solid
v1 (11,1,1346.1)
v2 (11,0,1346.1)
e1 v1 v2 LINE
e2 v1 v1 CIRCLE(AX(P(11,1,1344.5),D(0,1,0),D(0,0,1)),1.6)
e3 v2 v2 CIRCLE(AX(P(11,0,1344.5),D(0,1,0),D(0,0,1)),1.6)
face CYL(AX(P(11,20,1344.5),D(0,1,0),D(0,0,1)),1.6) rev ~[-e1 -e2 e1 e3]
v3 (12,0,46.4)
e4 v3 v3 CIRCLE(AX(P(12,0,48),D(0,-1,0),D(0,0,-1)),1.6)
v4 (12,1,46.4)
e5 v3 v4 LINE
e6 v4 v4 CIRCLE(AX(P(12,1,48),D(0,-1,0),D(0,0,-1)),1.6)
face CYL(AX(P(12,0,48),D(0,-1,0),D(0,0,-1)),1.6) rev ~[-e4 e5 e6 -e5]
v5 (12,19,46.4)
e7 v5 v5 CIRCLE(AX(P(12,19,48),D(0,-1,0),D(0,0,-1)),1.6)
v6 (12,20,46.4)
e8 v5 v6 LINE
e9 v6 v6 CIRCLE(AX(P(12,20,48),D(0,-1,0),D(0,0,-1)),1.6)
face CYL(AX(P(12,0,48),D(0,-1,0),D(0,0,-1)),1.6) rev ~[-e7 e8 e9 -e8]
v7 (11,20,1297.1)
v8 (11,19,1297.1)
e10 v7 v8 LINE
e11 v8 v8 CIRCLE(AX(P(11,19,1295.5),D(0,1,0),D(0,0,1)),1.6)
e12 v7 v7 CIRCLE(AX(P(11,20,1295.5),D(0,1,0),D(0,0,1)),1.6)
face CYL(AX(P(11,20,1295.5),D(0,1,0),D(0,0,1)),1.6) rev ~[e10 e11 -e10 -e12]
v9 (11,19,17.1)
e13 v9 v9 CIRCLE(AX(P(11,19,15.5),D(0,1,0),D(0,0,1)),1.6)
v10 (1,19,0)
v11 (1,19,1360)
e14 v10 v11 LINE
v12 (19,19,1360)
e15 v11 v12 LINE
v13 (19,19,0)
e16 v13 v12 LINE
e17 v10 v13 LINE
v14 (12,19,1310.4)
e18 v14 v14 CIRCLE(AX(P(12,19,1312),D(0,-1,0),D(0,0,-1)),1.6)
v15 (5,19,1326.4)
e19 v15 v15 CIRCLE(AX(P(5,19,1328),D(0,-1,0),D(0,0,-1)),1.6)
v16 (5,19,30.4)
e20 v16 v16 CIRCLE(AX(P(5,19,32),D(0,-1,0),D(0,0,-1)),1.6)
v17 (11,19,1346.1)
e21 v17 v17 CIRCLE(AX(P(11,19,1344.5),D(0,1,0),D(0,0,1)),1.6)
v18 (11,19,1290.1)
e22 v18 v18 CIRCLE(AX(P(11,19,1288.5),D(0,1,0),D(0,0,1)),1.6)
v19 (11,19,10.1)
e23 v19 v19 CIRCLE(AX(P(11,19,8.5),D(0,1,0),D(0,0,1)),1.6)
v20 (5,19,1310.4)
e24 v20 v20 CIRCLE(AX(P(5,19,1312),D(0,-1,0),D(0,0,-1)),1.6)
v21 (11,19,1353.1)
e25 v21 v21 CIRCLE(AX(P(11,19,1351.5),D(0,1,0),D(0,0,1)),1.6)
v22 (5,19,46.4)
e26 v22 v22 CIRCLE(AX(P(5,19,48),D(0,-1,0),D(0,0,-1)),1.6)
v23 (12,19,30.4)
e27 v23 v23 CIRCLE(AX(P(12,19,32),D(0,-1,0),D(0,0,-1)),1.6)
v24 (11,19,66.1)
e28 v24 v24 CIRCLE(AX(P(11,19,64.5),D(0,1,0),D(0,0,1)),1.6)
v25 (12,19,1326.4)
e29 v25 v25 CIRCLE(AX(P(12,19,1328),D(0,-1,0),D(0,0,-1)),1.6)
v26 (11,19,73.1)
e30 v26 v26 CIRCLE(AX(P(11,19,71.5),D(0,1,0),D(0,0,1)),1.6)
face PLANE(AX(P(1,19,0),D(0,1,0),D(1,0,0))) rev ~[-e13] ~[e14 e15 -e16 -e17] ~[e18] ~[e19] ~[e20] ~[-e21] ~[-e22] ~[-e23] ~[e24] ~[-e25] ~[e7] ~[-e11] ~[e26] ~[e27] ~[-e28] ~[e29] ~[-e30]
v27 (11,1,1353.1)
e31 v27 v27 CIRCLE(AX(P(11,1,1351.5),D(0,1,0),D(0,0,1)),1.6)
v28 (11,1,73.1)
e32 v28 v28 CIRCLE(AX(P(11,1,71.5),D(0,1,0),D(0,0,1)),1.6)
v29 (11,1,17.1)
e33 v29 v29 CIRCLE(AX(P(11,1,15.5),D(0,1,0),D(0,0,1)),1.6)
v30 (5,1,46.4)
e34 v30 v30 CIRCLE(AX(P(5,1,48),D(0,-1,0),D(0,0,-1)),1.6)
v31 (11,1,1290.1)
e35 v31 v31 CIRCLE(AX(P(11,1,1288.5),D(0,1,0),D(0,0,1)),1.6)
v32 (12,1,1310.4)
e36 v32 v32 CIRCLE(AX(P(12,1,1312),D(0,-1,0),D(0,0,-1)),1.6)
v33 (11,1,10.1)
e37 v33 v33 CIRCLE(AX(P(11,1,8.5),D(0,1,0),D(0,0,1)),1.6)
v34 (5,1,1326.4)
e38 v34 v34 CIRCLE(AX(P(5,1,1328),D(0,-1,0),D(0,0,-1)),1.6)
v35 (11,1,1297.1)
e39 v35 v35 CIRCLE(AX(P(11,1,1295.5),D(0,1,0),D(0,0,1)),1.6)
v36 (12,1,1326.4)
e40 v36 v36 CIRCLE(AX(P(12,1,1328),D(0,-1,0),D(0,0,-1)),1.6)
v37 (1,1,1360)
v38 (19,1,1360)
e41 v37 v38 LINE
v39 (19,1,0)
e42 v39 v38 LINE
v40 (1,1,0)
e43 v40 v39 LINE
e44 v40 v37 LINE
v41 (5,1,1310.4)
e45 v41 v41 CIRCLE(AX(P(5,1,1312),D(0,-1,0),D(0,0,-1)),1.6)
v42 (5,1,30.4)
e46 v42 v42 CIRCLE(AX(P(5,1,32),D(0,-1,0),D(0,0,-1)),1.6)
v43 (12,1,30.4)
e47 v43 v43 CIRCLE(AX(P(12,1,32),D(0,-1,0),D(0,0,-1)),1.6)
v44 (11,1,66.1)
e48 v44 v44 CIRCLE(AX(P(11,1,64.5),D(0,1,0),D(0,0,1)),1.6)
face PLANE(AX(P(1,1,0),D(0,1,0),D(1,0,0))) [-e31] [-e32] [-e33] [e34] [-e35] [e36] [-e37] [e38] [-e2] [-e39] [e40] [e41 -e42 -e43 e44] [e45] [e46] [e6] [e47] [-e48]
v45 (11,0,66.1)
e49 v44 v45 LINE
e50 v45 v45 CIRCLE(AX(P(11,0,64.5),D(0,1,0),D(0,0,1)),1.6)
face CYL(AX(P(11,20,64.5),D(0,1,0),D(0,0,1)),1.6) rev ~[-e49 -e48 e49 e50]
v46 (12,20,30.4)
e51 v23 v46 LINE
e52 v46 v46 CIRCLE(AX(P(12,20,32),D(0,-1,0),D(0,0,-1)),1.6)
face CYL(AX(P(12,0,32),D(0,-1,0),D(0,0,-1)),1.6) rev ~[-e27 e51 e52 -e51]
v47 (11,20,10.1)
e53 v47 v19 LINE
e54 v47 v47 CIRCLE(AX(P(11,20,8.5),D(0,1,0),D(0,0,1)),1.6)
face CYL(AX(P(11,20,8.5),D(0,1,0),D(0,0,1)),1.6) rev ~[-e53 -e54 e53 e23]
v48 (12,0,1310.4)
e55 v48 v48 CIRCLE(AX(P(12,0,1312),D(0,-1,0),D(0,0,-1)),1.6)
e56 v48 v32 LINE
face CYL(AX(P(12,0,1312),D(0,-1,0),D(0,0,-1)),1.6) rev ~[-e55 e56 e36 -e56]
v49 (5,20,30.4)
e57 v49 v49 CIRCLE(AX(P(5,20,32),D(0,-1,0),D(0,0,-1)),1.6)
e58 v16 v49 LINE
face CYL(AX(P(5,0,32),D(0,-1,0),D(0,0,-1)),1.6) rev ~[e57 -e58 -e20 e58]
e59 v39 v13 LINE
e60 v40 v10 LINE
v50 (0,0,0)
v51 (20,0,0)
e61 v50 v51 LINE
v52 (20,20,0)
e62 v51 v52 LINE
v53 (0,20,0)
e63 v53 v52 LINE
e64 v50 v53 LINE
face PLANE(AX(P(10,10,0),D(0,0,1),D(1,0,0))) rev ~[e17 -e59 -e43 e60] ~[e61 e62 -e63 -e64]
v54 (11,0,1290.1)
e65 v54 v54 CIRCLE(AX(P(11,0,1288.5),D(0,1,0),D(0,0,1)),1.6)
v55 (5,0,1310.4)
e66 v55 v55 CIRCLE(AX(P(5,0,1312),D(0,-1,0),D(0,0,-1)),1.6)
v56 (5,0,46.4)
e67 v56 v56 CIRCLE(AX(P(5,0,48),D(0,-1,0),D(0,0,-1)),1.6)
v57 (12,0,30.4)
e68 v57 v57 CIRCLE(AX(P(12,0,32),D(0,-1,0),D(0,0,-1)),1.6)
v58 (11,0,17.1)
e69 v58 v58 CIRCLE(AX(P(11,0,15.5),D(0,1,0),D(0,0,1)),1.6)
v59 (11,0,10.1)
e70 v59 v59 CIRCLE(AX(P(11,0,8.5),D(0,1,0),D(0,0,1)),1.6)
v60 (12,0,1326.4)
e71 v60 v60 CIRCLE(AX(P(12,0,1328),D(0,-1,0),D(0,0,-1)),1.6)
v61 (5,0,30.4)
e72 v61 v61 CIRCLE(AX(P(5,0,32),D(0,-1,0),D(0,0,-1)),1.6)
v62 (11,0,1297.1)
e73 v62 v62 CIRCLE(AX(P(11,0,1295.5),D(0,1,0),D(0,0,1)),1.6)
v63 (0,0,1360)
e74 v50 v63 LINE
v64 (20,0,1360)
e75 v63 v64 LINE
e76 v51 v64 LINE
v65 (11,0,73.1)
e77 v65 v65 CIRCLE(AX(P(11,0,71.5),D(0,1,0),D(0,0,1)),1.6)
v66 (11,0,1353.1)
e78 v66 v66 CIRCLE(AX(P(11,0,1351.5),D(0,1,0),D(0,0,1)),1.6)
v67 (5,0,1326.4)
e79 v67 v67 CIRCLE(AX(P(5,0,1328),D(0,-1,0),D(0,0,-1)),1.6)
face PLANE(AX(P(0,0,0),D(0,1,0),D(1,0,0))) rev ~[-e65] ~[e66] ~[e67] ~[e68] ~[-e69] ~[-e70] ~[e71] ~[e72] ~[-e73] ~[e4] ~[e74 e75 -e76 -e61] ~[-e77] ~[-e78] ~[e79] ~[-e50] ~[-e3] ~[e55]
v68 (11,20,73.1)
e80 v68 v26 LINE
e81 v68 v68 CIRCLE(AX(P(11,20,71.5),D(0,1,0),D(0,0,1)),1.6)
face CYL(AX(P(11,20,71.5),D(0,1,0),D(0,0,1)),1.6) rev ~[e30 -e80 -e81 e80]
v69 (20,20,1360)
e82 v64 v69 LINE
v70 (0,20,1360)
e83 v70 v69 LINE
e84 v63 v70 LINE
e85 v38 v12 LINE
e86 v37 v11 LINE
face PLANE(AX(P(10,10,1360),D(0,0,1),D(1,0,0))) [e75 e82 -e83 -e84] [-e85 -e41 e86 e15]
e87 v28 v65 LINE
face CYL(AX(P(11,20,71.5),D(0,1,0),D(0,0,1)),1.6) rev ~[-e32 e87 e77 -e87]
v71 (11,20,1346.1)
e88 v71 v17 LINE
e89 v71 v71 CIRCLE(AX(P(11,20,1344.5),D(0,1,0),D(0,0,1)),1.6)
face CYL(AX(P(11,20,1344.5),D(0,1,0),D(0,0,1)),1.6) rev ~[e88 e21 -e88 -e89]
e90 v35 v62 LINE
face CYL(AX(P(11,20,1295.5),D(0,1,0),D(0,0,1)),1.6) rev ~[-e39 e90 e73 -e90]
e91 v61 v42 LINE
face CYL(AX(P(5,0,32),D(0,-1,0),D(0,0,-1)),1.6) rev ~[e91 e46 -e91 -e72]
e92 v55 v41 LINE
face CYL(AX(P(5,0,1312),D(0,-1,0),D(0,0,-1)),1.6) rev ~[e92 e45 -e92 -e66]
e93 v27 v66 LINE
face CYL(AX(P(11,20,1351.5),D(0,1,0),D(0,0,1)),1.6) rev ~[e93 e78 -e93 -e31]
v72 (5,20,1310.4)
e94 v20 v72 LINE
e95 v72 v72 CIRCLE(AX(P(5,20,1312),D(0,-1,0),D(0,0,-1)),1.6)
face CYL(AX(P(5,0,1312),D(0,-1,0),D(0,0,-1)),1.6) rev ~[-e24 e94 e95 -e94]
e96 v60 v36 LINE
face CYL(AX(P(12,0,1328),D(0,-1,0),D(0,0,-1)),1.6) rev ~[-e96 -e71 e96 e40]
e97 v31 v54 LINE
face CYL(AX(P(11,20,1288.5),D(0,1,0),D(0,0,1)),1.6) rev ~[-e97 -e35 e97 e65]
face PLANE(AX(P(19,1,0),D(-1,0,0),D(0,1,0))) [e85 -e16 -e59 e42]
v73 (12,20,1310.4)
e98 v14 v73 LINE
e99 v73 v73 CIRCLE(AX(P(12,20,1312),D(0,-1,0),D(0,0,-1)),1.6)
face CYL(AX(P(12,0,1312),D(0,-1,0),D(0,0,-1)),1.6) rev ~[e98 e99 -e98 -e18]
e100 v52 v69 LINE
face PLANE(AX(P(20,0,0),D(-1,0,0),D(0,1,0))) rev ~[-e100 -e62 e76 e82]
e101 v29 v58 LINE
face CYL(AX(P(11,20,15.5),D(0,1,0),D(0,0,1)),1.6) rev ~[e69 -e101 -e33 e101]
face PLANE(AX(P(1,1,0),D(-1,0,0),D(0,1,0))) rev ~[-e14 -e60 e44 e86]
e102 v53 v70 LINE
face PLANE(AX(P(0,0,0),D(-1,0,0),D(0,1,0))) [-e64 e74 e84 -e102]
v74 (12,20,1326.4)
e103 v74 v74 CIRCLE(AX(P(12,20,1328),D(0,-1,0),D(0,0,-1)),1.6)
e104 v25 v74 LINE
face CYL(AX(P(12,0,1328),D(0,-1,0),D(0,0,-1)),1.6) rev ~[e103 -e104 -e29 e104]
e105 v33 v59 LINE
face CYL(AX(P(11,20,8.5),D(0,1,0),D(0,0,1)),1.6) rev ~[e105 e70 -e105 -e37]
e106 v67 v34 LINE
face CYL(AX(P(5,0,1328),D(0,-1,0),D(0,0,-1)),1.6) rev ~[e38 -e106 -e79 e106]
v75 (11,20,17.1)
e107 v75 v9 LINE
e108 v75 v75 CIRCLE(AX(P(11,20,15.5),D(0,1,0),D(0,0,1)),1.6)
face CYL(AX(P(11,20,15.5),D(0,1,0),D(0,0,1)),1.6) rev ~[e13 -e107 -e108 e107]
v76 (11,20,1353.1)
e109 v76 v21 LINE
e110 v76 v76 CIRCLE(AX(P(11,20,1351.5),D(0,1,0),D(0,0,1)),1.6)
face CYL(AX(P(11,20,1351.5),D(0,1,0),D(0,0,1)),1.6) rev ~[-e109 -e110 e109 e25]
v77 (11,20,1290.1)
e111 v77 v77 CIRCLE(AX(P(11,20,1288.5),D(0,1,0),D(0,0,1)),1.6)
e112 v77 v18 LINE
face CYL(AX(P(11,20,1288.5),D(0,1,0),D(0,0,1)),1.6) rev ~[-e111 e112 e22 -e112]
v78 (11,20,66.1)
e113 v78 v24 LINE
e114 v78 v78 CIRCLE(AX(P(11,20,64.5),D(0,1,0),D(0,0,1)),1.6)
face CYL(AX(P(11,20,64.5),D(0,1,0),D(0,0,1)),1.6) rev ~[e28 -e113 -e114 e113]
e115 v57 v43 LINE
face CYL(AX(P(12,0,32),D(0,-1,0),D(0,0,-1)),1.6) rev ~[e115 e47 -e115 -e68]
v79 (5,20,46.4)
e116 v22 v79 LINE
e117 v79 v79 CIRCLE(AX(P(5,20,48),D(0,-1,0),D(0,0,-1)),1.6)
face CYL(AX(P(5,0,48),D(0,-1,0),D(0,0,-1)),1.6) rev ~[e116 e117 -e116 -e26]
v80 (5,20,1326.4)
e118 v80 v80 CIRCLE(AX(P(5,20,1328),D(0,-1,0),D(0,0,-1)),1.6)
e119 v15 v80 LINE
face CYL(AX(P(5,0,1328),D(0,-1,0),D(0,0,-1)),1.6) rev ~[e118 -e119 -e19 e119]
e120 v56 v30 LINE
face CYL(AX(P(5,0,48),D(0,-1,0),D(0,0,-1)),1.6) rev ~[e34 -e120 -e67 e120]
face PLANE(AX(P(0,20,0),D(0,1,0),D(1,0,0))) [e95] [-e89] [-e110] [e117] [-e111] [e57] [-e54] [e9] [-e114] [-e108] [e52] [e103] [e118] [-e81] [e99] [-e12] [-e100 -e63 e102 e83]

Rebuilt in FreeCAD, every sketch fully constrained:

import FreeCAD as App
import Part
import Sketcher

V = App.Vector
Q = App.Units.Quantity


def add_polygon(sketch, points):
    """Adds a closed chain of lines whose ends are joined by coincident constraints."""
    first, n = sketch.GeometryCount, len(points)
    for a, b in zip(points, points[1:] + points[:1]):
        sketch.addGeometry(Part.LineSegment(App.Vector(*a, 0), App.Vector(*b, 0)), False)
    for i in range(n):
        sketch.addConstraint(Sketcher.Constraint("Coincident", first + i, 2, first + (i + 1) % n, 1))

doc = App.newDocument("Part")
params = doc.addObject("Spreadsheet::Sheet", "Params")
for row, (alias, value) in enumerate([
    ("sketch1_width", "20 mm"),
    ("sketch1_width2", "18 mm"),
    ("pad1_length", "1360 mm"),
    ("sketch2_diameter", "3.2 mm"),
    ("sketch3_diameter", "3.2 mm"),
], start=1):
    params.set(f"A{row}", alias)
    params.set(f"B{row}", "=" + value)
    params.setAlias(f"B{row}", alias)

body = doc.addObject("PartDesign::Body", "Body")

sketch1 = doc.addObject("Sketcher::SketchObject", "Sketch")
body.addObject(sketch1)
sketch1.AttachmentSupport = (doc.XY_Plane, [""])
sketch1.MapMode = "FlatFace"
add_polygon(sketch1, [(0, 20), (0, 0), (20, 0), (20, 20)])
add_polygon(sketch1, [(19, 1), (1, 1), (1, 19), (19, 19)])
sketch1.addConstraint([
    Sketcher.Constraint("Vertical", 0),
    Sketcher.Constraint("Horizontal", 1),
    Sketcher.Constraint("Vertical", 2),
    Sketcher.Constraint("Horizontal", 3),
    Sketcher.Constraint("Horizontal", 4),
    Sketcher.Constraint("Vertical", 5),
    Sketcher.Constraint("Horizontal", 6),
    Sketcher.Constraint("Vertical", 7),
    Sketcher.Constraint("Coincident", 0, 2, -1, 1),
    Sketcher.Constraint("Equal", 3, 0),
    Sketcher.Constraint("Equal", 6, 5),
    Sketcher.Constraint("DistanceX", 1, 1, 1, 2, Q("20 mm")),
    Sketcher.Constraint("DistanceX", 4, 2, 4, 1, Q("18 mm")),
    Sketcher.Constraint("DistanceX", -1, 1, 4, 2, Q("1 mm")),
    Sketcher.Constraint("DistanceY", -1, 1, 4, 2, Q("1 mm")),
])
sketch1.setExpression("Constraints[19]", "Params.sketch1_width")
sketch1.setExpression("Constraints[20]", "Params.sketch1_width2")
pad1 = doc.addObject("PartDesign::Pad", "Pad")
body.addObject(pad1)
pad1.Profile = sketch1
pad1.setExpression("Length", "Params.pad1_length")

sketch2 = doc.addObject("Sketcher::SketchObject", "Sketch001")
body.addObject(sketch2)
sketch2.AttachmentSupport = (doc.XZ_Plane, [""])
sketch2.MapMode = "FlatFace"
sketch2.AttachmentOffset = App.Placement(V(0, 0, -20), App.Rotation())
sketch2.addGeometry([
    Part.Circle(V(11, 15.5, 0), V(0, 0, 1), 1.6),
    Part.Circle(V(11, 8.5, 0), V(0, 0, 1), 1.6),
    Part.Circle(V(11, 71.5, 0), V(0, 0, 1), 1.6),
    Part.Circle(V(11, 64.5, 0), V(0, 0, 1), 1.6),
    Part.Circle(V(11, 1295.5, 0), V(0, 0, 1), 1.6),
    Part.Circle(V(11, 1288.5, 0), V(0, 0, 1), 1.6),
    Part.Circle(V(11, 1351.5, 0), V(0, 0, 1), 1.6),
    Part.Circle(V(11, 1344.5, 0), V(0, 0, 1), 1.6),
], False)
sketch2.addConstraint([
    Sketcher.Constraint("Equal", 0, 1),
    Sketcher.Constraint("Equal", 1, 2),
    Sketcher.Constraint("Equal", 2, 3),
    Sketcher.Constraint("Equal", 3, 4),
    Sketcher.Constraint("Equal", 4, 5),
    Sketcher.Constraint("Equal", 5, 6),
    Sketcher.Constraint("Equal", 6, 7),
    Sketcher.Constraint("Vertical", 0, 3, 1, 3),
    Sketcher.Constraint("Vertical", 1, 3, 2, 3),
    Sketcher.Constraint("Vertical", 2, 3, 3, 3),
    Sketcher.Constraint("Vertical", 3, 3, 4, 3),
    Sketcher.Constraint("Vertical", 4, 3, 5, 3),
    Sketcher.Constraint("Vertical", 5, 3, 6, 3),
    Sketcher.Constraint("Vertical", 6, 3, 7, 3),
    Sketcher.Constraint("Diameter", 0, Q("3.2 mm")),
    Sketcher.Constraint("DistanceX", -1, 1, 0, 3, Q("11 mm")),
    Sketcher.Constraint("DistanceY", 1, 3, 0, 3, Q("7 mm")),
    Sketcher.Constraint("DistanceY", 0, 3, 2, 3, Q("56 mm")),
    Sketcher.Constraint("DistanceY", 3, 3, 2, 3, Q("7 mm")),
    Sketcher.Constraint("DistanceY", 2, 3, 4, 3, Q("1224 mm")),
    Sketcher.Constraint("DistanceY", 5, 3, 4, 3, Q("7 mm")),
    Sketcher.Constraint("DistanceY", 4, 3, 6, 3, Q("56 mm")),
    Sketcher.Constraint("DistanceY", 7, 3, 6, 3, Q("7 mm")),
    Sketcher.Constraint("DistanceY", -1, 1, 0, 3, Q("15.5 mm")),
])
sketch2.setExpression("Constraints[14]", "Params.sketch2_diameter")
pocket1 = doc.addObject("PartDesign::Pocket", "Pocket")
body.addObject(pocket1)
pocket1.Profile = sketch2
pocket1.Type = "ThroughAll"
pocket1.Reversed = True

sketch3 = doc.addObject("Sketcher::SketchObject", "Sketch002")
body.addObject(sketch3)
sketch3.AttachmentSupport = (doc.XZ_Plane, [""])
sketch3.MapMode = "FlatFace"
sketch3.addGeometry([
    Part.Circle(V(12, 1312, 0), V(0, 0, 1), 1.6),
    Part.Circle(V(12, 1328, 0), V(0, 0, 1), 1.6),
    Part.Circle(V(12, 32, 0), V(0, 0, 1), 1.6),
    Part.Circle(V(12, 48, 0), V(0, 0, 1), 1.6),
    Part.Circle(V(5, 1312, 0), V(0, 0, 1), 1.6),
    Part.Circle(V(5, 1328, 0), V(0, 0, 1), 1.6),
    Part.Circle(V(5, 32, 0), V(0, 0, 1), 1.6),
    Part.Circle(V(5, 48, 0), V(0, 0, 1), 1.6),
], False)
sketch3.addConstraint([
    Sketcher.Constraint("Equal", 0, 1),
    Sketcher.Constraint("Equal", 1, 2),
    Sketcher.Constraint("Equal", 2, 3),
    Sketcher.Constraint("Equal", 3, 4),
    Sketcher.Constraint("Equal", 4, 5),
    Sketcher.Constraint("Equal", 5, 6),
    Sketcher.Constraint("Equal", 6, 7),
    Sketcher.Constraint("Horizontal", 0, 3, 4, 3),
    Sketcher.Constraint("Horizontal", 1, 3, 5, 3),
    Sketcher.Constraint("Horizontal", 2, 3, 6, 3),
    Sketcher.Constraint("Horizontal", 3, 3, 7, 3),
    Sketcher.Constraint("Vertical", 0, 3, 1, 3),
    Sketcher.Constraint("Vertical", 1, 3, 2, 3),
    Sketcher.Constraint("Vertical", 2, 3, 3, 3),
    Sketcher.Constraint("Vertical", 4, 3, 5, 3),
    Sketcher.Constraint("Vertical", 5, 3, 6, 3),
    Sketcher.Constraint("Vertical", 6, 3, 7, 3),
    Sketcher.Constraint("Diameter", 0, Q("3.2 mm")),
    Sketcher.Constraint("DistanceX", -1, 1, 0, 3, Q("12 mm")),
    Sketcher.Constraint("DistanceY", -1, 1, 0, 3, Q("1312 mm")),
    Sketcher.Constraint("DistanceY", -1, 1, 1, 3, Q("1328 mm")),
    Sketcher.Constraint("DistanceY", -1, 1, 2, 3, Q("32 mm")),
    Sketcher.Constraint("DistanceY", -1, 1, 3, 3, Q("48 mm")),
    Sketcher.Constraint("DistanceX", -1, 1, 4, 3, Q("5 mm")),
])
sketch3.setExpression("Constraints[17]", "Params.sketch3_diameter")
pocket2 = doc.addObject("PartDesign::Pocket", "Pocket001")
body.addObject(pocket2)
pocket2.Profile = sketch3
pocket2.Type = "ThroughAll"

doc.recompute()
